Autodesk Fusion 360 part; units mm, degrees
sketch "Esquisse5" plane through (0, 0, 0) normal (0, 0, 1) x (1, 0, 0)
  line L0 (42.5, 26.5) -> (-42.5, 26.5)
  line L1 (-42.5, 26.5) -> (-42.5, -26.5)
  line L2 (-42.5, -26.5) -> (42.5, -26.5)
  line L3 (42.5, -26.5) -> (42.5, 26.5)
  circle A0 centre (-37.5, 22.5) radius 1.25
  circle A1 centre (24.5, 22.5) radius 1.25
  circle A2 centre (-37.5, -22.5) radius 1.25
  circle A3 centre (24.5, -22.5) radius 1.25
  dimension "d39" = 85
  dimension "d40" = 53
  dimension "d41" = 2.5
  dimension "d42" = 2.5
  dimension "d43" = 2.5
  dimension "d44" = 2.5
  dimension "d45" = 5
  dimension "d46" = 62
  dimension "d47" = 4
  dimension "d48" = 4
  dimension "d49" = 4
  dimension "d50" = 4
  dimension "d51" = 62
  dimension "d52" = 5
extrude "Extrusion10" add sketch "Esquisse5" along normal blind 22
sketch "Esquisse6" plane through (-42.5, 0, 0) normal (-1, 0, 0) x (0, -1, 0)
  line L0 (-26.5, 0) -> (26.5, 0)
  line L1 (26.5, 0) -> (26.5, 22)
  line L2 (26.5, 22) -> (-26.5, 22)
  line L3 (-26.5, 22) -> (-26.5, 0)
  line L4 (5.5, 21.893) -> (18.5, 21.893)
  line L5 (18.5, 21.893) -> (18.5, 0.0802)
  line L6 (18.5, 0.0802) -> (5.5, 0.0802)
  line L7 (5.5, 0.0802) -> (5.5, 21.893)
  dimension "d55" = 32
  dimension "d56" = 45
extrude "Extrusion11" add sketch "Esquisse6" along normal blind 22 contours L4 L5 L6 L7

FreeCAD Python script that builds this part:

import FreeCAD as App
import Part
import Sketcher


def add_polygon(sketch, points):
    """Adds a closed chain of lines whose ends are joined by coincident constraints."""
    first, n = sketch.GeometryCount, len(points)
    for a, b in zip(points, points[1:] + points[:1]):
        sketch.addGeometry(Part.LineSegment(App.Vector(*a, 0), App.Vector(*b, 0)), False)
    for i in range(n):
        sketch.addConstraint(Sketcher.Constraint("Coincident", first + i, 2, first + (i + 1) % n, 1))

doc = App.newDocument("Part")
body = doc.addObject("PartDesign::Body", "Body")

# Sketch on XY plane
sketch1 = doc.addObject("Sketcher::SketchObject", "Sketch")
body.addObject(sketch1)
sketch1.AttachmentSupport = (doc.XY_Plane, [""])
sketch1.MapMode = "FlatFace"
add_polygon(sketch1, [(42.5, -26.5), (42.5, 26.5), (-42.5, 26.5), (-42.5, -26.5)])  # lines 0-3
sketch1.addGeometry(Part.Circle(App.Vector(-37.5, -22.5, 0), App.Vector(0, 0, 1), 1.25), False)  # 4
sketch1.addGeometry(Part.Circle(App.Vector(24.5, -22.5, 0), App.Vector(0, 0, 1), 1.25), False)  # 5
sketch1.addGeometry(Part.Circle(App.Vector(-37.5, 22.5, 0), App.Vector(0, 0, 1), 1.25), False)  # 6
sketch1.addGeometry(Part.Circle(App.Vector(24.5, 22.5, 0), App.Vector(0, 0, 1), 1.25), False)  # 7
sketch1.addConstraint(Sketcher.Constraint("Vertical", 0))
sketch1.addConstraint(Sketcher.Constraint("Horizontal", 1))
sketch1.addConstraint(Sketcher.Constraint("Vertical", 2))
sketch1.addConstraint(Sketcher.Constraint("Horizontal", 3))
sketch1.addConstraint(Sketcher.Constraint("Equal", 4, 5))
sketch1.addConstraint(Sketcher.Constraint("Equal", 5, 6))
sketch1.addConstraint(Sketcher.Constraint("Equal", 6, 7))
sketch1.addConstraint(Sketcher.Constraint("Symmetric", 0, 2, 2, 2, -1, 1))
sketch1.addConstraint(Sketcher.Constraint("Symmetric", 4, 3, 6, 3, -1))
sketch1.addConstraint(Sketcher.Constraint("Symmetric", 5, 3, 7, 3, -1))
sketch1.addConstraint(Sketcher.Constraint("Horizontal", 4, 3, 5, 3))
sketch1.addConstraint(Sketcher.Constraint("Diameter", 4, 2.5))
sketch1.addConstraint(Sketcher.Constraint("DistanceX", 1, 2, 1, 1, 85.0))
sketch1.addConstraint(Sketcher.Constraint("DistanceY", 0, 1, 0, 2, 53.0))
sketch1.addConstraint(Sketcher.Constraint("DistanceX", 4, 3, 5, 3, 62.0))
sketch1.addConstraint(Sketcher.Constraint("DistanceY", 7, 3, 0, 2, 4.0))
sketch1.addConstraint(Sketcher.Constraint("DistanceX", 1, 2, 6, 3, 5.0))
pad1 = doc.addObject("PartDesign::Pad", "Pad")
body.addObject(pad1)
pad1.Profile = sketch1
pad1.Length = 22

# Sketch on YZ plane
sketch2 = doc.addObject("Sketcher::SketchObject", "Sketch001")
body.addObject(sketch2)
sketch2.AttachmentSupport = (doc.YZ_Plane, [""])
sketch2.MapMode = "FlatFace"
sketch2.AttachmentOffset = App.Placement(App.Vector(0, 0, -42.5), App.Rotation())
add_polygon(sketch2, [(-18.5, 21.893), (-5.5, 21.893), (-5.5, 0.0802), (-18.5, 0.0802)])  # lines 0-3
sketch2.addConstraint(Sketcher.Constraint("Horizontal", 0))
sketch2.addConstraint(Sketcher.Constraint("Vertical", 1))
sketch2.addConstraint(Sketcher.Constraint("Horizontal", 2))
sketch2.addConstraint(Sketcher.Constraint("Vertical", 3))
sketch2.addConstraint(Sketcher.Constraint("DistanceX", 0, 1, 0, 2, 13.0))
sketch2.addConstraint(Sketcher.Constraint("DistanceX", 0, 2, -1, 1, 5.5))
sketch2.addConstraint(Sketcher.Constraint("DistanceY", 1, 2, 1, 1, 21.8128))
sketch2.addConstraint(Sketcher.Constraint("DistanceY", -1, 1, 0, 2, 21.893))
pad2 = doc.addObject("PartDesign::Pad", "Pad001")
body.addObject(pad2)
pad2.Profile = sketch2
pad2.Length = 22
pad2.Reversed = True

doc.recompute()
